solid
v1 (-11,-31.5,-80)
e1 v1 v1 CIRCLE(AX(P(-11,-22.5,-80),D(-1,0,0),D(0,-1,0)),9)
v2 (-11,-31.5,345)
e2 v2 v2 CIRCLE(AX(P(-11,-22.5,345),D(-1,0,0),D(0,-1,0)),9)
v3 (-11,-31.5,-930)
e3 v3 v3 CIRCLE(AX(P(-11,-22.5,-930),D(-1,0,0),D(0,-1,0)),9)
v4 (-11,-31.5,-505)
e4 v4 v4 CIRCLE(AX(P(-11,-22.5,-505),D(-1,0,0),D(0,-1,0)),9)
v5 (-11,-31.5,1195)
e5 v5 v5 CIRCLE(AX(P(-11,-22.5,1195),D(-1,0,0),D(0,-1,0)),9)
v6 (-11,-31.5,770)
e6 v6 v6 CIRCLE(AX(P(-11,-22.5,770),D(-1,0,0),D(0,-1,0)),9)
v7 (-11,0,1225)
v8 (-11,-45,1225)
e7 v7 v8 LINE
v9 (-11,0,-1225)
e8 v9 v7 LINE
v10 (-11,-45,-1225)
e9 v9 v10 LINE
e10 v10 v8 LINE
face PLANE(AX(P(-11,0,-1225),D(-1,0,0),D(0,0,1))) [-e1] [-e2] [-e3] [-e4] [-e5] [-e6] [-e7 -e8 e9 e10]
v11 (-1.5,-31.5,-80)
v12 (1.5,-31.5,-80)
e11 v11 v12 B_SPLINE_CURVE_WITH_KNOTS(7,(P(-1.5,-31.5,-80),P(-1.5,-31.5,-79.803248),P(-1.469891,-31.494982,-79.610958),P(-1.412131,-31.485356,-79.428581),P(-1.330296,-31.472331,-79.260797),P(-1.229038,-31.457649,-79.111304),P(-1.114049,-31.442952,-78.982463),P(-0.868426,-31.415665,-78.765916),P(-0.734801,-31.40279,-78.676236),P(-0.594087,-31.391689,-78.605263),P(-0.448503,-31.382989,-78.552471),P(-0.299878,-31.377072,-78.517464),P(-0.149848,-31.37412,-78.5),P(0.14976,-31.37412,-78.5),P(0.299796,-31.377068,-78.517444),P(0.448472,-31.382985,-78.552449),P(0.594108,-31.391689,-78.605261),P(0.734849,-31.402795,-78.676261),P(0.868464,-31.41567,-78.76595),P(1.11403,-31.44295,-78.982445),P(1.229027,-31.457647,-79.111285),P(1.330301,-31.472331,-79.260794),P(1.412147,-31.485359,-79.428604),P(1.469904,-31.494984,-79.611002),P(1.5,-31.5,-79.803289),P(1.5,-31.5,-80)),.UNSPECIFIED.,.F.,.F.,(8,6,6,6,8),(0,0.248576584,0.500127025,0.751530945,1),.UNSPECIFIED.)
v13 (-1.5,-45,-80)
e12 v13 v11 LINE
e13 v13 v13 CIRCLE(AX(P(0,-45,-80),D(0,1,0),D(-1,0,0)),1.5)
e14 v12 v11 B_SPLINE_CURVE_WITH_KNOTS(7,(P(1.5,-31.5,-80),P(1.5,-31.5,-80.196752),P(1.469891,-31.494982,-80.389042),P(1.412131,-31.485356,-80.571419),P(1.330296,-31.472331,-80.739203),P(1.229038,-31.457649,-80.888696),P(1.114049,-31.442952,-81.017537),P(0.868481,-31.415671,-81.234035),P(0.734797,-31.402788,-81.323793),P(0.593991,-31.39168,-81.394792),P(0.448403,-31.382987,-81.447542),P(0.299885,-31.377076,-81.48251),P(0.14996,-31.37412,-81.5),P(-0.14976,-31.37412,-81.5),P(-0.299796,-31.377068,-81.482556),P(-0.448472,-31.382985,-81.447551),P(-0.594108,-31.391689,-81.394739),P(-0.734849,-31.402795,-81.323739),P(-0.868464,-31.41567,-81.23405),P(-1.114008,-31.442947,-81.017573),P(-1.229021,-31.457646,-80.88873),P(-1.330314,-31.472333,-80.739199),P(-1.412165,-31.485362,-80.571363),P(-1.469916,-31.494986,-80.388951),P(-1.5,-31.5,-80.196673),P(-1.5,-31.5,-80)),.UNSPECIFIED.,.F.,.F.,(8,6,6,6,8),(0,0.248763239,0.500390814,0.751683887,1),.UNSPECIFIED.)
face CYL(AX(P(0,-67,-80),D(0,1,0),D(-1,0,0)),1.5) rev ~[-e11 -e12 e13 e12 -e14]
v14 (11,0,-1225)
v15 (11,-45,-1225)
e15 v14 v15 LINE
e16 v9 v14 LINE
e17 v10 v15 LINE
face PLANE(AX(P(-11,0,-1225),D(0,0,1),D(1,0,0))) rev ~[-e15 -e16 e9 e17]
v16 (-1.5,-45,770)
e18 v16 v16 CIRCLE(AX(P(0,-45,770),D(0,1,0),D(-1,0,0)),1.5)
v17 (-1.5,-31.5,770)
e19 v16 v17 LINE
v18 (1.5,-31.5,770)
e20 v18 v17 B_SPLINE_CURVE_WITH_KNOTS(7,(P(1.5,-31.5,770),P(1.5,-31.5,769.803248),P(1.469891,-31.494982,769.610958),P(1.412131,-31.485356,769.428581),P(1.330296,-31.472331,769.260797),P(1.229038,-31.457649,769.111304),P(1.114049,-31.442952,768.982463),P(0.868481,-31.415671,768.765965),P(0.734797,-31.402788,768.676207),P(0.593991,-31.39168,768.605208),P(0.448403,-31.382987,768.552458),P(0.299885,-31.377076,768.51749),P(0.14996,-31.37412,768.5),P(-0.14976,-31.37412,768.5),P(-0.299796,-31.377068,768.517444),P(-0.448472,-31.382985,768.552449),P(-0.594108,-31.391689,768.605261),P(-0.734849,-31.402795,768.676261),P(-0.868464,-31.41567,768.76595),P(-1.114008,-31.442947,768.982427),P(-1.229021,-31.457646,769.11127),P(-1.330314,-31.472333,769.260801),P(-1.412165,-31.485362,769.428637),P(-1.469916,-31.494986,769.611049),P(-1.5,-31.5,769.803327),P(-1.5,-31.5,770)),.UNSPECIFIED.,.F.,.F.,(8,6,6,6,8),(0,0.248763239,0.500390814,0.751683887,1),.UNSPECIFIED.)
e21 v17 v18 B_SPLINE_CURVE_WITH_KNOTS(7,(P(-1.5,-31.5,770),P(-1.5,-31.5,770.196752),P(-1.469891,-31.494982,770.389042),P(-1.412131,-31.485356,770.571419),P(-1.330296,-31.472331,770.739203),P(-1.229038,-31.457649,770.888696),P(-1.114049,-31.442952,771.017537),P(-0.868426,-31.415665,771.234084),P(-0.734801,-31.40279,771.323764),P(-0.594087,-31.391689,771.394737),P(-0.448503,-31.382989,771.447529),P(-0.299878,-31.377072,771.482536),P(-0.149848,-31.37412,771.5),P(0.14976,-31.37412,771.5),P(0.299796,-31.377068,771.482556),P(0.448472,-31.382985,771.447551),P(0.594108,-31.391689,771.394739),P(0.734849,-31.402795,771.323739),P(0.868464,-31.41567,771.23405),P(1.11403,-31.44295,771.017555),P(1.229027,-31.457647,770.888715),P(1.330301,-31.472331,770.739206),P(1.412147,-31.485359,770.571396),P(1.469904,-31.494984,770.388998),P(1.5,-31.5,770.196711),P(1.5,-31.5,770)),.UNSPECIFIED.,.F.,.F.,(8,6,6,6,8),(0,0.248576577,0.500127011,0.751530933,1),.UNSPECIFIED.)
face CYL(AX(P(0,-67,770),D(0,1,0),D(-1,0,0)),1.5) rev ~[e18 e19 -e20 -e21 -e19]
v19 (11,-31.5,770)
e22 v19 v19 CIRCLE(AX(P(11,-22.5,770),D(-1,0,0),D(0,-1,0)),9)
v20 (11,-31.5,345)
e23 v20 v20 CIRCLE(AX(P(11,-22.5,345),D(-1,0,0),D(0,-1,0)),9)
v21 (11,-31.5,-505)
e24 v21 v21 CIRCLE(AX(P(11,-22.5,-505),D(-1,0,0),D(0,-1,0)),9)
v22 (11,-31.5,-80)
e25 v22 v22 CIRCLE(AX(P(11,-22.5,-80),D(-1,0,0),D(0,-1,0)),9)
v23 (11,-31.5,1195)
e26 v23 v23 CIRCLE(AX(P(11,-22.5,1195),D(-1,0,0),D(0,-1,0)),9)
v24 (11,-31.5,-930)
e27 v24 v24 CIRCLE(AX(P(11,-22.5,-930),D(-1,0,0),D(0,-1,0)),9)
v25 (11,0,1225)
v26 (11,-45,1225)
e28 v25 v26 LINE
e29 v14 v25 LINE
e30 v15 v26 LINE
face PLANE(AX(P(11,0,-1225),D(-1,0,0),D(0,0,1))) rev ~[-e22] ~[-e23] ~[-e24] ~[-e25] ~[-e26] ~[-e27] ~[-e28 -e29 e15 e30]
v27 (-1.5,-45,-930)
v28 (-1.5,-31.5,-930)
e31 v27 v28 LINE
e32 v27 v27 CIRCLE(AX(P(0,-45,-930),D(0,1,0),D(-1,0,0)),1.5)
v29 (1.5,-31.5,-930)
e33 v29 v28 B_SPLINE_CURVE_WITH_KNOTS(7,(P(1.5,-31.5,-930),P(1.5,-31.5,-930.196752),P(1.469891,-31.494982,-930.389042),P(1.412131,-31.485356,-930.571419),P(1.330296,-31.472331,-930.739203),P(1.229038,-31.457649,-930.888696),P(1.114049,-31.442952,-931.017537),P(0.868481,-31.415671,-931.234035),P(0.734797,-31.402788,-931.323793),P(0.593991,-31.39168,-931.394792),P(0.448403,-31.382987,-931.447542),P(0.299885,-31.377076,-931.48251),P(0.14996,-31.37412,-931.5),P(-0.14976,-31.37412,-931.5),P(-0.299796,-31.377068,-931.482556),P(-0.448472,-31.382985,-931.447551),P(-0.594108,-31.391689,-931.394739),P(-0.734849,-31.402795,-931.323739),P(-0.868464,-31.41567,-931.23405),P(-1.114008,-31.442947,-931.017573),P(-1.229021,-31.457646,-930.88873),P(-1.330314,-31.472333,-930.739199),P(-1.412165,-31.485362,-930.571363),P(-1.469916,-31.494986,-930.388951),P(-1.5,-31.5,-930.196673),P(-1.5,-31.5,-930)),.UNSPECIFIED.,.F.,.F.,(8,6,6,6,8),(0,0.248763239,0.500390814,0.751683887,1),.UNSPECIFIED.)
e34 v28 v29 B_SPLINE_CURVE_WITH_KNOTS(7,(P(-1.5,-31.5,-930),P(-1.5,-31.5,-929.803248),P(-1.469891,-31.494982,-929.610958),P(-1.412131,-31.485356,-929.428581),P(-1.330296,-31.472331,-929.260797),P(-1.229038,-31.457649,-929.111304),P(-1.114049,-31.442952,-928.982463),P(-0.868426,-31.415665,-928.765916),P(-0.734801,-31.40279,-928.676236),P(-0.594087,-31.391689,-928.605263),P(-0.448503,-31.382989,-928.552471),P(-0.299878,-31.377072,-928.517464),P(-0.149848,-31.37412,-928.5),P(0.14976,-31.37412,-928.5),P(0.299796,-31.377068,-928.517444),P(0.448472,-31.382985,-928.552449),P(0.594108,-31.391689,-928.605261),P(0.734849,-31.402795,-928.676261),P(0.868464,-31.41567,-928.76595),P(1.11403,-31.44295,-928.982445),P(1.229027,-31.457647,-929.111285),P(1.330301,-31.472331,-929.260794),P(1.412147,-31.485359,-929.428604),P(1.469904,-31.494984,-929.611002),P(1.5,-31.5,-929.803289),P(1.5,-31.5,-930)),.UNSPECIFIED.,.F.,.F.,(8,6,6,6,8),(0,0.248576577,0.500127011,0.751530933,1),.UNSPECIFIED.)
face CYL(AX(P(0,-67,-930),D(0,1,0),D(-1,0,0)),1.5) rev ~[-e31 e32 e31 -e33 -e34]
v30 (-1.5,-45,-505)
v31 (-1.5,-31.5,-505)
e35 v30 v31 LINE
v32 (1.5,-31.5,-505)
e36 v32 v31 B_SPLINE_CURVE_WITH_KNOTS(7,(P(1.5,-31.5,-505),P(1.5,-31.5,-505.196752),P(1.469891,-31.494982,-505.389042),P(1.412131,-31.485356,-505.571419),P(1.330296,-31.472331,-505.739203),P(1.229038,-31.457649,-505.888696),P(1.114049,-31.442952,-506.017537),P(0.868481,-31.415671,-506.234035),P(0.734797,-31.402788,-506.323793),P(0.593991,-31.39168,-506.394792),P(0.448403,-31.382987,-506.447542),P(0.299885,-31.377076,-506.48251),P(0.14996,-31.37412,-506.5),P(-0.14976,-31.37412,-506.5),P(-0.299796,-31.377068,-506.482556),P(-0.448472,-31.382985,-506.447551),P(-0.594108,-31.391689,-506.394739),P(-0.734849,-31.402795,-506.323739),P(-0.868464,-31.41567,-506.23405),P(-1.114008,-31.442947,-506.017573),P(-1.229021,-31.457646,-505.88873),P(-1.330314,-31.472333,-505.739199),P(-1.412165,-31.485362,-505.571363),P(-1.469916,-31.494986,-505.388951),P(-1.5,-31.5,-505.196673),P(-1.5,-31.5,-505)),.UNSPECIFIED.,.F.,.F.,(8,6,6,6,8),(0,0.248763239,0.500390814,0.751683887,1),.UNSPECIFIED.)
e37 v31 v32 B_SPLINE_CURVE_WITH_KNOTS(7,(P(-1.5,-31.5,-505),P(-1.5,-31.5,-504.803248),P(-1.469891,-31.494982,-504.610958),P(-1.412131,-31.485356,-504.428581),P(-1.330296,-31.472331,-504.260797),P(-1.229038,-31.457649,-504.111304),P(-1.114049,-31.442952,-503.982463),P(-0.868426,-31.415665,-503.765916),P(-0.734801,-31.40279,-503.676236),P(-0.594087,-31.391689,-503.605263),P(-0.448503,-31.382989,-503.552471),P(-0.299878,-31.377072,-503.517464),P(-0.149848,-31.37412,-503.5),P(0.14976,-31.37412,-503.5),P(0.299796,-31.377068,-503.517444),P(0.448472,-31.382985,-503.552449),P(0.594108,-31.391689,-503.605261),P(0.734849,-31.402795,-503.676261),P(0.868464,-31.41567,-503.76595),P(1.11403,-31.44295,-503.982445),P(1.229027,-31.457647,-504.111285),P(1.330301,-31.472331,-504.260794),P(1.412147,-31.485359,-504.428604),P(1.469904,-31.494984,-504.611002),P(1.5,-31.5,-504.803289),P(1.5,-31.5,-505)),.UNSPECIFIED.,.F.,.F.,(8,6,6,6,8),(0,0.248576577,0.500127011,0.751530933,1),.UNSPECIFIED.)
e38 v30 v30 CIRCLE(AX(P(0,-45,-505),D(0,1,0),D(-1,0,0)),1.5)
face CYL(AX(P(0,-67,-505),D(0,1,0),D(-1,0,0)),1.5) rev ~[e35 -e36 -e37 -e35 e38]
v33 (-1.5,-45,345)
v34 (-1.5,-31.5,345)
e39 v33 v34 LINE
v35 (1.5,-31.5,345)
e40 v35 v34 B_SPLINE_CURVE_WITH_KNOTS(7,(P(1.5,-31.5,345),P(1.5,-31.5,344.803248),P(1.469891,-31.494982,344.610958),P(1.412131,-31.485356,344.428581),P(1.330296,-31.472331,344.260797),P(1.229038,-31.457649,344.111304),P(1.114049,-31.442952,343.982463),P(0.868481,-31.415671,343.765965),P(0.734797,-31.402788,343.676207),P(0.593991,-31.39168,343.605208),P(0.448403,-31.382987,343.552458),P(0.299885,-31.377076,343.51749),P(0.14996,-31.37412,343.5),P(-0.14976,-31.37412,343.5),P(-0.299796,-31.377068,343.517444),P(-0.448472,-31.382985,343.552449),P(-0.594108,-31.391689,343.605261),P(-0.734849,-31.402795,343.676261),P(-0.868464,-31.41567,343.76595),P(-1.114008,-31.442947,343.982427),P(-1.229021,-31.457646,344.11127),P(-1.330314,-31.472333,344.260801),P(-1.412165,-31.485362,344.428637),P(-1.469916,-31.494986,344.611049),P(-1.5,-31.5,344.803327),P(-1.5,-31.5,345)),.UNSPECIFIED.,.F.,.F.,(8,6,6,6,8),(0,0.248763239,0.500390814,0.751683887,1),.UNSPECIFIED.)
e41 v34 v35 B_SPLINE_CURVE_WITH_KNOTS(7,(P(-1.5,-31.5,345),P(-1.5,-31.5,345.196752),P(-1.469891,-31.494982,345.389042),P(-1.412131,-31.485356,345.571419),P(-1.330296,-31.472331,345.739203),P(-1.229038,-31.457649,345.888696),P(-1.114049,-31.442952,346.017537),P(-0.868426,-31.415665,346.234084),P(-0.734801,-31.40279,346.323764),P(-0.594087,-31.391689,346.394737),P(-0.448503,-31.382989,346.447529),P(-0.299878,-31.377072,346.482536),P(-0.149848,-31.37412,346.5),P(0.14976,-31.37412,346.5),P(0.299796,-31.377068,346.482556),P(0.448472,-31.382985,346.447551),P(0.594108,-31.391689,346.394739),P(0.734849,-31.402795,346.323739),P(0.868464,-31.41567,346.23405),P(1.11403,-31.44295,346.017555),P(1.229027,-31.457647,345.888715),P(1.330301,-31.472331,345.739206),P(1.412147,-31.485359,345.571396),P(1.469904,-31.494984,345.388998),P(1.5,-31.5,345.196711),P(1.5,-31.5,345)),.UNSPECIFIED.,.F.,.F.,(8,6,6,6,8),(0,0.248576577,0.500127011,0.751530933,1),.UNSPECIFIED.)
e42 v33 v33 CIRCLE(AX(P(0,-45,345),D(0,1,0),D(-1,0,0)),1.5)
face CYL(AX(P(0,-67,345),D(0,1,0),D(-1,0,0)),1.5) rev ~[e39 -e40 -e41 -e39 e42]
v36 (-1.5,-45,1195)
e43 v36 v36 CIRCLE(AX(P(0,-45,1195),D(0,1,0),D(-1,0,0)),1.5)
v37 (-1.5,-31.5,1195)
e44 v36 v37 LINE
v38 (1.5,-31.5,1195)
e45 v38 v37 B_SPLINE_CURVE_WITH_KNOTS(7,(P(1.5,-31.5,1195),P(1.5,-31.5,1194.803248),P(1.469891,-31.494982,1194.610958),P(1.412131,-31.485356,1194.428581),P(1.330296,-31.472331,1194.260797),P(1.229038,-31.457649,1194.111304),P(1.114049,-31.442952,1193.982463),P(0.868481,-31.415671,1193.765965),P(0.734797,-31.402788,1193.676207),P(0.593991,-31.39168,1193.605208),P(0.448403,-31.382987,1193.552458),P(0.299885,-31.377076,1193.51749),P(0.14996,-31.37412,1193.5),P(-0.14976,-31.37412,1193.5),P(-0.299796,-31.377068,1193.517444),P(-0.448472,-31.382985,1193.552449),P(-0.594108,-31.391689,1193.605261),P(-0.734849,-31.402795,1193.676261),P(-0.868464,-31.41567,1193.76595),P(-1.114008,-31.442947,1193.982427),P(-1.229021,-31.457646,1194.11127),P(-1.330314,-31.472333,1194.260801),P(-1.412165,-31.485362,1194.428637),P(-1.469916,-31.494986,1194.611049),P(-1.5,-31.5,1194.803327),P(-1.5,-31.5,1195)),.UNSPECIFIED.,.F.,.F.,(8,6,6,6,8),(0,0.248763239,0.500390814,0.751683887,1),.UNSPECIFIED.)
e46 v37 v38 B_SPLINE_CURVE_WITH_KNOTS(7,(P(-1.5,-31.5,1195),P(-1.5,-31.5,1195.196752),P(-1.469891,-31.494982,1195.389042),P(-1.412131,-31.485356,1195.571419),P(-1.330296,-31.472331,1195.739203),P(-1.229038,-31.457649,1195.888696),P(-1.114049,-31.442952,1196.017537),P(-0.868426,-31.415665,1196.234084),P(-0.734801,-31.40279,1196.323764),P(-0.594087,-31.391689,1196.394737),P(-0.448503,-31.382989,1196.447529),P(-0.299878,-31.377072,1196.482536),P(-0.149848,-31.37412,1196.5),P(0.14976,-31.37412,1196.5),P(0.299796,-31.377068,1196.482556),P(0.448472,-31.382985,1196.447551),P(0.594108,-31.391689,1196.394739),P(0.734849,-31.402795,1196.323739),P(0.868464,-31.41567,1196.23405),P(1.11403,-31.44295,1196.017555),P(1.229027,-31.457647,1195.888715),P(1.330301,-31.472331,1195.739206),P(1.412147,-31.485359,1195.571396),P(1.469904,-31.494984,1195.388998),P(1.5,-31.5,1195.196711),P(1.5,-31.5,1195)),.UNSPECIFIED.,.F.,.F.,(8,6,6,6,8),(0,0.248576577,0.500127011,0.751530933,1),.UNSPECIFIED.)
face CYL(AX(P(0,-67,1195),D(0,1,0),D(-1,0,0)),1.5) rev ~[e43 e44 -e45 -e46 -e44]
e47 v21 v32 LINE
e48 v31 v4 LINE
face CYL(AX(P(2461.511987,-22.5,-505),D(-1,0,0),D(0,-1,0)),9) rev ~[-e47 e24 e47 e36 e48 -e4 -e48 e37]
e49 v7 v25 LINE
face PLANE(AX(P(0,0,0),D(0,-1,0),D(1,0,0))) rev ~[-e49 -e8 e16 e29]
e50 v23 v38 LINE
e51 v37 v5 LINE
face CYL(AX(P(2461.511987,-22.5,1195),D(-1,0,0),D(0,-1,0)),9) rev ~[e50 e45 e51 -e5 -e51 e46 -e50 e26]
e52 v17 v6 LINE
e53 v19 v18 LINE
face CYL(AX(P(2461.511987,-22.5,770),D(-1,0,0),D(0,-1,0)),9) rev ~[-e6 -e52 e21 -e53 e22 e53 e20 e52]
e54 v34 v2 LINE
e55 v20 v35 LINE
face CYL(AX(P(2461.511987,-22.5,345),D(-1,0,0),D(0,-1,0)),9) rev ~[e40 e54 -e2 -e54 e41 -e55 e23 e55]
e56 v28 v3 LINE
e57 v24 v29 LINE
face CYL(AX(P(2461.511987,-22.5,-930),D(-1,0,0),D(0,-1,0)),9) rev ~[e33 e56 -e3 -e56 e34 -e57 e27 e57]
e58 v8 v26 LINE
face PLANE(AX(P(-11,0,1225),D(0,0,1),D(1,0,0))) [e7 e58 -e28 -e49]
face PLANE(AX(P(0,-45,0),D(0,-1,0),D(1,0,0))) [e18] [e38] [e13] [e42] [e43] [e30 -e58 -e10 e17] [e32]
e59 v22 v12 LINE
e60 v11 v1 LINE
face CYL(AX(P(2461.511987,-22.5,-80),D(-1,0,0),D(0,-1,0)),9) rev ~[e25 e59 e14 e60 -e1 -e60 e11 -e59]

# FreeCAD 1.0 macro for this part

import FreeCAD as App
import Part
import Sketcher
from FreeCAD import Vector

doc = App.newDocument("Part")
params = doc.addObject("Spreadsheet::Sheet", "Params")
for row, (alias, value) in enumerate([
    ("sketch1_width", "22 mm"),
    ("sketch1_height", "2450 mm"),
    ("pad1_length", "45 mm"),
    ("sketch2_diameter", "3 mm"),
    ("hole_diameter", "3 mm"),
    ("hole_depth", "22 mm"),
    ("sketch3_diameter", "18 mm"),
    ("hole2_diameter", "18 mm"),
], start=1):
    params.set(f"A{row}", alias)
    params.set(f"B{row}", "=" + value)
    params.setAlias(f"B{row}", alias)

body = doc.addObject("PartDesign::Body", "Body")

sketch1 = doc.addObject("Sketcher::SketchObject", "Sketch")
body.addObject(sketch1)
sketch1.AttachmentSupport = (doc.XZ_Plane, [""])
sketch1.MapMode = "FlatFace"
sketch1.addGeometry([
    Part.LineSegment(Vector(-11, 1225, 0), Vector(-11, -1225, 0)),
    Part.LineSegment(Vector(-11, -1225, 0), Vector(11, -1225, 0)),
    Part.LineSegment(Vector(11, -1225, 0), Vector(11, 1225, 0)),
    Part.LineSegment(Vector(11, 1225, 0), Vector(-11, 1225, 0)),
], False)
sketch1.addConstraint([
    Sketcher.Constraint("Coincident", 0, 2, 1, 1),
    Sketcher.Constraint("Coincident", 1, 2, 2, 1),
    Sketcher.Constraint("Coincident", 2, 2, 3, 1),
    Sketcher.Constraint("Coincident", 3, 2, 0, 1),
    Sketcher.Constraint("Vertical", 0),
    Sketcher.Constraint("Horizontal", 1),
    Sketcher.Constraint("Vertical", 2),
    Sketcher.Constraint("Horizontal", 3),
    Sketcher.Constraint("Symmetric", 0, 2, 2, 2, -1, 1),
    Sketcher.Constraint("DistanceX", 1, 1, 1, 2, 22.0),
    Sketcher.Constraint("DistanceY", 0, 2, 0, 1, 2450.0),
])
sketch1.setExpression("Constraints[9]", "Params.sketch1_width")
sketch1.setExpression("Constraints[10]", "Params.sketch1_height")
pad1 = doc.addObject("PartDesign::Pad", "Pad")
body.addObject(pad1)
pad1.Profile = sketch1
pad1.setExpression("Length", "Params.pad1_length")

sketch2 = doc.addObject("Sketcher::SketchObject", "Sketch001")
body.addObject(sketch2)
sketch2.AttachmentSupport = (doc.XZ_Plane, [""])
sketch2.MapMode = "FlatFace"
sketch2.AttachmentOffset = App.Placement(Vector(0, 0, 45), App.Rotation())
sketch2.addGeometry([
    Part.Circle(Vector(0, 1195, 0), Vector(0, 0, 1), 1.5),
    Part.Circle(Vector(0, 770, 0), Vector(0, 0, 1), 1.5),
    Part.Circle(Vector(0, -505, 0), Vector(0, 0, 1), 1.5),
    Part.Circle(Vector(0, 345, 0), Vector(0, 0, 1), 1.5),
    Part.Circle(Vector(0, -930, 0), Vector(0, 0, 1), 1.5),
    Part.Circle(Vector(0, -80, 0), Vector(0, 0, 1), 1.5),
], False)
sketch2.addConstraint([
    Sketcher.Constraint("Equal", 0, 1),
    Sketcher.Constraint("Equal", 1, 2),
    Sketcher.Constraint("Equal", 2, 3),
    Sketcher.Constraint("Equal", 3, 4),
    Sketcher.Constraint("Equal", 4, 5),
    Sketcher.Constraint("PointOnObject", 0, 3, -2),
    Sketcher.Constraint("PointOnObject", 1, 3, -2),
    Sketcher.Constraint("PointOnObject", 2, 3, -2),
    Sketcher.Constraint("PointOnObject", 3, 3, -2),
    Sketcher.Constraint("PointOnObject", 4, 3, -2),
    Sketcher.Constraint("PointOnObject", 5, 3, -2),
    Sketcher.Constraint("Diameter", 0, 3.0),
    Sketcher.Constraint("DistanceY", -1, 1, 0, 3, 1195.0),
    Sketcher.Constraint("DistanceY", -1, 1, 1, 3, 770.0),
    Sketcher.Constraint("DistanceY", 2, 3, -1, 1, 505.0),
    Sketcher.Constraint("DistanceY", -1, 1, 3, 3, 345.0),
    Sketcher.Constraint("DistanceY", 4, 3, -1, 1, 930.0),
    Sketcher.Constraint("DistanceY", 5, 3, -1, 1, 80.0),
])
sketch2.setExpression("Constraints[11]", "Params.sketch2_diameter")
doc.recompute()
hole = doc.addObject("PartDesign::Hole", "Hole")
body.addObject(hole)
hole.Profile = sketch2
hole.ThreadType = "None"
hole.setExpression("Diameter", "Params.hole_diameter")
hole.DepthType = "Dimension"
hole.setExpression("Depth", "Params.hole_depth")
hole.DrillPoint = "Flat"

sketch3 = doc.addObject("Sketcher::SketchObject", "Sketch002")
body.addObject(sketch3)
sketch3.AttachmentSupport = (doc.YZ_Plane, [""])
sketch3.MapMode = "FlatFace"
sketch3.AttachmentOffset = App.Placement(Vector(0, 0, 11), App.Rotation())
sketch3.addGeometry([
    Part.Circle(Vector(-22, 1195, 0), Vector(0, 0, 1), 9),
    Part.Circle(Vector(-22, 770, 0), Vector(0, 0, 1), 9),
    Part.Circle(Vector(-22, 345, 0), Vector(0, 0, 1), 9),
    Part.Circle(Vector(-22, -80, 0), Vector(0, 0, 1), 9),
    Part.Circle(Vector(-22, -505, 0), Vector(0, 0, 1), 9),
    Part.Circle(Vector(-22, -930, 0), Vector(0, 0, 1), 9),
], False)
sketch3.addConstraint([
    Sketcher.Constraint("Equal", 0, 1),
    Sketcher.Constraint("Equal", 1, 2),
    Sketcher.Constraint("Equal", 2, 3),
    Sketcher.Constraint("Equal", 3, 4),
    Sketcher.Constraint("Equal", 4, 5),
    Sketcher.Constraint("Vertical", 0, 3, 1, 3),
    Sketcher.Constraint("Vertical", 1, 3, 2, 3),
    Sketcher.Constraint("Vertical", 2, 3, 3, 3),
    Sketcher.Constraint("Vertical", 3, 3, 4, 3),
    Sketcher.Constraint("Vertical", 4, 3, 5, 3),
    Sketcher.Constraint("Diameter", 0, 18.0),
    Sketcher.Constraint("DistanceY", -1, 1, 0, 3, 1195.0),
    Sketcher.Constraint("DistanceY", -1, 1, 1, 3, 770.0),
    Sketcher.Constraint("DistanceY", -1, 1, 2, 3, 345.0),
    Sketcher.Constraint("DistanceY", 3, 3, -1, 1, 80.0),
    Sketcher.Constraint("DistanceY", 4, 3, -1, 1, 505.0),
    Sketcher.Constraint("DistanceY", 5, 3, -1, 1, 930.0),
    Sketcher.Constraint("DistanceX", 0, 3, -1, 1, 22.5),
])
sketch3.setExpression("Constraints[10]", "Params.sketch3_diameter")
doc.recompute()
hole2 = doc.addObject("PartDesign::Hole", "Hole001")
body.addObject(hole2)
hole2.Profile = sketch3
hole2.ThreadType = "None"
hole2.setExpression("Diameter", "Params.hole2_diameter")
hole2.DepthType = "ThroughAll"

doc.recompute()
